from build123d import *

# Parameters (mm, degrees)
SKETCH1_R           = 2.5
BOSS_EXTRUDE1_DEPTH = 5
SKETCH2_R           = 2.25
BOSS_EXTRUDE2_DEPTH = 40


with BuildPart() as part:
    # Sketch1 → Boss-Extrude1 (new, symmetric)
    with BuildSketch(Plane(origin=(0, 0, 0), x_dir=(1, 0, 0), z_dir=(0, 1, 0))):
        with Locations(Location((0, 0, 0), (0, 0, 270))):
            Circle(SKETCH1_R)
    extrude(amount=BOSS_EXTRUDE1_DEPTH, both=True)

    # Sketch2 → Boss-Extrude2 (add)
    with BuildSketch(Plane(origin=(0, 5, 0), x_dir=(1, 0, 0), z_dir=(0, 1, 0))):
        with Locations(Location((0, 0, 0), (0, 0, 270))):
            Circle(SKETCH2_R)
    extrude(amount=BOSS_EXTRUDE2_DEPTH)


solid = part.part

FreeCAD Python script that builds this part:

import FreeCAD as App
import Part
import Sketcher
Q = App.Units.Quantity

doc = App.newDocument("Part")
body = doc.addObject("PartDesign::Body", "Body")

sketch1 = body.newObject("Sketcher::SketchObject", "Sketch")
sketch1.AttachmentSupport = (doc.getObject("XZ_Plane"), [""])
sketch1.MapMode = "FlatFace"
sketch1.addGeometry(Part.Circle(App.Vector(0, 0, 0), App.Vector(0, 0, 1), 2.5), False)
sketch1.addConstraint(Sketcher.Constraint("Coincident", 0, 3, -1, 1))
sketch1.addConstraint(Sketcher.Constraint("Diameter", 0, Q("5 mm")))
pad1 = body.newObject("PartDesign::Pad", "Pad")
pad1.Profile = sketch1
pad1.Length = 10
pad1.Midplane = True

sketch2 = body.newObject("Sketcher::SketchObject", "Sketch001")
sketch2.AttachmentSupport = (doc.getObject("XZ_Plane"), [""])
sketch2.MapMode = "FlatFace"
sketch2.AttachmentOffset = App.Placement(App.Vector(0, 0, -5), App.Rotation())
sketch2.addGeometry(Part.Circle(App.Vector(0, 0, 0), App.Vector(0, 0, 1), 2.2), False)
sketch2.addConstraint(Sketcher.Constraint("Coincident", 0, 3, -1, 1))
sketch2.addConstraint(Sketcher.Constraint("Diameter", 0, Q("4.5 mm")))
pad2 = body.newObject("PartDesign::Pad", "Pad001")
pad2.Profile = sketch2
pad2.Length = 40
pad2.Reversed = True

doc.recompute()
